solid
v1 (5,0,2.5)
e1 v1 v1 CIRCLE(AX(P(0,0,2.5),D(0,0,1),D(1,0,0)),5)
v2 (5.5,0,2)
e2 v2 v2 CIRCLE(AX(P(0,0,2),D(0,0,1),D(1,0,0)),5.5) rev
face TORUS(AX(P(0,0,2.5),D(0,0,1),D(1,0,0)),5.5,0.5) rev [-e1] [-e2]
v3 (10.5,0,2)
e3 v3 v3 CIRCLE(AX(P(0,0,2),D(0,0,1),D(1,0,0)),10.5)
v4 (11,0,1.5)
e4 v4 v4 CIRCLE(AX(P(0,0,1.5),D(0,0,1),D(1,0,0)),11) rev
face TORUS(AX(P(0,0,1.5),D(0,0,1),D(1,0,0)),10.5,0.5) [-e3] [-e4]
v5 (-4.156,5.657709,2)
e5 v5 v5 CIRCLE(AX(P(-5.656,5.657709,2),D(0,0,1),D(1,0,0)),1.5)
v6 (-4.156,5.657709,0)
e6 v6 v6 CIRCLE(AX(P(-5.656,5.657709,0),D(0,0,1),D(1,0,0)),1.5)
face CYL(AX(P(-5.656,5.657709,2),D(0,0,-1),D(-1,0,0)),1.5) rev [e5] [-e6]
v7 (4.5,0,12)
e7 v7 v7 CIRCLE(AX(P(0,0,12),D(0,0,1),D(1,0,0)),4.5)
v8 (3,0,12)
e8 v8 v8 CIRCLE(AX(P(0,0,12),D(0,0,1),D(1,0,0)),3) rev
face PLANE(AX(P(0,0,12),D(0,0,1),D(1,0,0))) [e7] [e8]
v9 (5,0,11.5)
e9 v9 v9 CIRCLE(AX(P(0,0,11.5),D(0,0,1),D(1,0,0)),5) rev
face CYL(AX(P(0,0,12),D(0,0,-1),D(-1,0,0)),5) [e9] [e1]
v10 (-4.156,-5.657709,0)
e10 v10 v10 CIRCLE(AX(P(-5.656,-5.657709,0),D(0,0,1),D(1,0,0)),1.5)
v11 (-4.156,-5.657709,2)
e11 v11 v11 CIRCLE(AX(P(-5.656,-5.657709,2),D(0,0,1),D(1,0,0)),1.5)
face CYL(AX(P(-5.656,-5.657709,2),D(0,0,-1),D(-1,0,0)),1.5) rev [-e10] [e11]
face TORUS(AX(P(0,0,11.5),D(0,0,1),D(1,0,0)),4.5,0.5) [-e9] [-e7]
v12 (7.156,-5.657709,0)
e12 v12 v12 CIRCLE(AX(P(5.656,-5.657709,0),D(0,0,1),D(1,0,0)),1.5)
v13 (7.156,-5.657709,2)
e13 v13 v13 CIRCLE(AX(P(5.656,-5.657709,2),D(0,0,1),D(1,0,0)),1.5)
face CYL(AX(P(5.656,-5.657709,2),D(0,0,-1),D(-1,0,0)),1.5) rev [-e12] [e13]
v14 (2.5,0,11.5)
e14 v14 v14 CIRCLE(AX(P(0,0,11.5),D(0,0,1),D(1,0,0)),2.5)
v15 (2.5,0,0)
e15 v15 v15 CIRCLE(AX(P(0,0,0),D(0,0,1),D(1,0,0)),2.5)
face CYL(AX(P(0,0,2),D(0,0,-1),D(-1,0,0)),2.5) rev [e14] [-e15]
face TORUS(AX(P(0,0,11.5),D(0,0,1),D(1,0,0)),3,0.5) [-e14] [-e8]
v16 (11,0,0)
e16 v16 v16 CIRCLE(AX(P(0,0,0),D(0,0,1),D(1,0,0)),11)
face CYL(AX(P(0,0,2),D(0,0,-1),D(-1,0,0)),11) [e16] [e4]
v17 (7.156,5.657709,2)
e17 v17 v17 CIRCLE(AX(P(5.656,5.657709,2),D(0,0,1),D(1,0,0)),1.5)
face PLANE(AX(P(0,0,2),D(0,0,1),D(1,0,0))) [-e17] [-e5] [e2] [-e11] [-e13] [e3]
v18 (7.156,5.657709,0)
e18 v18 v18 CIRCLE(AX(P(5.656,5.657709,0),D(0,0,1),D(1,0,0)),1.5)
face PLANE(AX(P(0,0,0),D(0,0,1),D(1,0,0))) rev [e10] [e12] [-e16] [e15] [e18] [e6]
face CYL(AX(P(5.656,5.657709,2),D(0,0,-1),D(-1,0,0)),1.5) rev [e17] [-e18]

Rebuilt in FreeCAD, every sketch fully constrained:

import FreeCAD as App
import Part
import Sketcher

V = App.Vector
Q = App.Units.Quantity


def edges_at(feature, points):
    """Names of the edges that pass closest to the given points."""
    edges = feature.Shape.Edges
    near = lambda p: min(range(len(edges)), key=lambda i: edges[i].distToShape(Part.Vertex(*p))[0])
    return sorted({f"Edge{near(p) + 1}" for p in points})

doc = App.newDocument("Part")
body = doc.addObject("PartDesign::Body", "Body")

sketch1 = body.newObject("Sketcher::SketchObject", "Sketch")
sketch1.AttachmentSupport = (doc.getObject("XY_Plane"), [""])
sketch1.MapMode = "FlatFace"
sketch1.addGeometry([
    Part.Circle(V(0, 0, 0), V(0, 0, 1), 11),
    Part.Circle(V(-5.7, -5.7, 0), V(0, 0, 1), 1.5),
    Part.Circle(V(5.7, -5.7, 0), V(0, 0, 1), 1.5),
    Part.Circle(V(0, 0, 0), V(0, 0, 1), 2.5),
    Part.Circle(V(-5.7, 5.7, 0), V(0, 0, 1), 1.5),
    Part.Circle(V(5.7, 5.7, 0), V(0, 0, 1), 1.5),
], False)
sketch1.addConstraint([
    Sketcher.Constraint("Coincident", 0, 3, -1, 1),
    Sketcher.Constraint("Coincident", 3, 3, -1, 1),
    Sketcher.Constraint("Equal", 1, 2),
    Sketcher.Constraint("Equal", 2, 4),
    Sketcher.Constraint("Equal", 4, 5),
    Sketcher.Constraint("Symmetric", 2, 3, 4, 3, -1, 1),
    Sketcher.Constraint("Symmetric", 1, 3, 5, 3, -1, 1),
    Sketcher.Constraint("Symmetric", 1, 3, 2, 3, -2),
    Sketcher.Constraint("Diameter", 0, Q("22 mm")),
    Sketcher.Constraint("Diameter", 1, Q("3 mm")),
    Sketcher.Constraint("Diameter", 3, Q("5 mm")),
    Sketcher.Constraint("DistanceX", 1, 3, -1, 1, Q("5.656 mm")),
    Sketcher.Constraint("DistanceY", 1, 3, -1, 1, Q("5.657709 mm")),
])
pad1 = body.newObject("PartDesign::Pad", "Pad")
pad1.Profile = sketch1
pad1.Length = 2

sketch2 = body.newObject("Sketcher::SketchObject", "Sketch001")
sketch2.AttachmentSupport = (doc.getObject("XY_Plane"), [""])
sketch2.MapMode = "FlatFace"
sketch2.AttachmentOffset = App.Placement(V(0, 0, 2), App.Rotation())
sketch2.addGeometry([
    Part.Circle(V(0, 0, 0), V(0, 0, 1), 5),
    Part.Circle(V(0, 0, 0), V(0, 0, 1), 2.5),
], False)
sketch2.addConstraint([
    Sketcher.Constraint("Coincident", 0, 3, -1, 1),
    Sketcher.Constraint("Coincident", 1, 3, -1, 1),
    Sketcher.Constraint("Diameter", 0, Q("10 mm")),
    Sketcher.Constraint("Diameter", 1, Q("5 mm")),
])
pad2 = body.newObject("PartDesign::Pad", "Pad001")
pad2.Profile = sketch2
pad2.Length = 10
doc.recompute()

fillet = body.newObject("PartDesign::Fillet", "Fillet")
fillet.Base = (pad2, edges_at(pad2, [
    (-5, 0, 12),
    (-5, 0, 2),
    (-2.5, 0, 12),
    (-11, 0, 2),
]))
fillet.Radius = 0.5

doc.recompute()
